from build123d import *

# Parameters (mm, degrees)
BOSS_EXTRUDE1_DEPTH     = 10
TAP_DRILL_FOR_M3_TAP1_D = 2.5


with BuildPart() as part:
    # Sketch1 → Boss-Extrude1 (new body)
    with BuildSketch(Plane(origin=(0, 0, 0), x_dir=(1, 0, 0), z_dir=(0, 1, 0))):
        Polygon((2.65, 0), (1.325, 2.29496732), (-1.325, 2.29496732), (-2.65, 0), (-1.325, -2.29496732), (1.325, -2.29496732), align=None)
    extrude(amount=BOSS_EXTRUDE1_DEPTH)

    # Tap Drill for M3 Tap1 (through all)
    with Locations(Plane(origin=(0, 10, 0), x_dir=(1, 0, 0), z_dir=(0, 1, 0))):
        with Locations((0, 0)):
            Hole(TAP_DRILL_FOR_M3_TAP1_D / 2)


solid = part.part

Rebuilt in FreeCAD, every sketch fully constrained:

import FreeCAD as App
import Part
import Sketcher

V = App.Vector
Q = App.Units.Quantity

doc = App.newDocument("Part")
params = doc.addObject("Spreadsheet::Sheet", "Params")
for row, (alias, value) in enumerate([
    ("sketch1_width", "2.65 mm"),
    ("pad1_length", "10 mm"),
    ("sketch2_diameter", "2.5 mm"),
    ("hole_diameter", "2.5 mm"),
], start=1):
    params.set(f"A{row}", alias)
    params.set(f"B{row}", "=" + value)
    params.setAlias(f"B{row}", alias)

body = doc.addObject("PartDesign::Body", "Body")

# Sketch on XZ plane
sketch1 = body.newObject("Sketcher::SketchObject", "Sketch")
sketch1.AttachmentSupport = (doc.getObject("XZ_Plane"), [""])
sketch1.MapMode = "FlatFace"
sketch1.addGeometry([
    Part.LineSegment(V(2.65, 0, 0), V(1.325, -2.294967, 0)),  # 0
    Part.LineSegment(V(1.325, -2.294967, 0), V(-1.325, -2.294967, 0)),  # 1
    Part.LineSegment(V(-1.325, -2.294967, 0), V(-2.65, 0, 0)),  # 2
    Part.LineSegment(V(-2.65, 0, 0), V(-1.325, 2.294967, 0)),  # 3
    Part.LineSegment(V(-1.325, 2.294967, 0), V(1.325, 2.294967, 0)),  # 4
    Part.LineSegment(V(1.325, 2.294967, 0), V(2.65, 0, 0)),  # 5
], False)
sketch1.addConstraint([
    Sketcher.Constraint("Coincident", 0, 2, 1, 1),
    Sketcher.Constraint("Coincident", 1, 2, 2, 1),
    Sketcher.Constraint("Coincident", 2, 2, 3, 1),
    Sketcher.Constraint("Coincident", 3, 2, 4, 1),
    Sketcher.Constraint("Coincident", 4, 2, 5, 1),
    Sketcher.Constraint("Coincident", 5, 2, 0, 1),
    Sketcher.Constraint("Horizontal", 1),
    Sketcher.Constraint("Horizontal", 4),
    Sketcher.Constraint("Symmetric", 0, 2, 3, 2, -1, 1),
    Sketcher.Constraint("Symmetric", 2, 2, 5, 2, -1, 1),
    Sketcher.Constraint("PointOnObject", 2, 2, -1),
    Sketcher.Constraint("Parallel", 2, 5),
    Sketcher.Constraint("Vertical", 1, 2, 3, 2),
    Sketcher.Constraint("Angle", 0, Q("-120 deg")),
    Sketcher.Constraint("DistanceX", 1, 2, 1, 1, Q("2.65 mm")),
    Sketcher.Constraint("DistanceX", 2, 2, 5, 2, Q("5.3 mm")),
])
sketch1.setExpression("Constraints[14]", "Params.sketch1_width")
pad1 = body.newObject("PartDesign::Pad", "Pad")
pad1.Profile = sketch1
pad1.setExpression("Length", "Params.pad1_length")
pad1.Reversed = True

# Sketch on XZ plane
sketch2 = body.newObject("Sketcher::SketchObject", "Sketch001")
sketch2.AttachmentSupport = (doc.getObject("XZ_Plane"), [""])
sketch2.MapMode = "FlatFace"
sketch2.AttachmentOffset = App.Placement(V(0, 0, -10), App.Rotation())
sketch2.addGeometry(Part.Circle(V(0, 0, 0), V(0, 0, 1), 1.25), False)
sketch2.addConstraint([
    Sketcher.Constraint("Coincident", 0, 3, -1, 1),
    Sketcher.Constraint("Diameter", 0, Q("2.5 mm")),
])
sketch2.setExpression("Constraints[1]", "Params.sketch2_diameter")
doc.recompute()
hole = body.newObject("PartDesign::Hole", "Hole")
hole.Profile = sketch2
hole.ThreadType = "None"
hole.setExpression("Diameter", "Params.hole_diameter")
hole.DepthType = "ThroughAll"
hole.Reversed = True

doc.recompute()
